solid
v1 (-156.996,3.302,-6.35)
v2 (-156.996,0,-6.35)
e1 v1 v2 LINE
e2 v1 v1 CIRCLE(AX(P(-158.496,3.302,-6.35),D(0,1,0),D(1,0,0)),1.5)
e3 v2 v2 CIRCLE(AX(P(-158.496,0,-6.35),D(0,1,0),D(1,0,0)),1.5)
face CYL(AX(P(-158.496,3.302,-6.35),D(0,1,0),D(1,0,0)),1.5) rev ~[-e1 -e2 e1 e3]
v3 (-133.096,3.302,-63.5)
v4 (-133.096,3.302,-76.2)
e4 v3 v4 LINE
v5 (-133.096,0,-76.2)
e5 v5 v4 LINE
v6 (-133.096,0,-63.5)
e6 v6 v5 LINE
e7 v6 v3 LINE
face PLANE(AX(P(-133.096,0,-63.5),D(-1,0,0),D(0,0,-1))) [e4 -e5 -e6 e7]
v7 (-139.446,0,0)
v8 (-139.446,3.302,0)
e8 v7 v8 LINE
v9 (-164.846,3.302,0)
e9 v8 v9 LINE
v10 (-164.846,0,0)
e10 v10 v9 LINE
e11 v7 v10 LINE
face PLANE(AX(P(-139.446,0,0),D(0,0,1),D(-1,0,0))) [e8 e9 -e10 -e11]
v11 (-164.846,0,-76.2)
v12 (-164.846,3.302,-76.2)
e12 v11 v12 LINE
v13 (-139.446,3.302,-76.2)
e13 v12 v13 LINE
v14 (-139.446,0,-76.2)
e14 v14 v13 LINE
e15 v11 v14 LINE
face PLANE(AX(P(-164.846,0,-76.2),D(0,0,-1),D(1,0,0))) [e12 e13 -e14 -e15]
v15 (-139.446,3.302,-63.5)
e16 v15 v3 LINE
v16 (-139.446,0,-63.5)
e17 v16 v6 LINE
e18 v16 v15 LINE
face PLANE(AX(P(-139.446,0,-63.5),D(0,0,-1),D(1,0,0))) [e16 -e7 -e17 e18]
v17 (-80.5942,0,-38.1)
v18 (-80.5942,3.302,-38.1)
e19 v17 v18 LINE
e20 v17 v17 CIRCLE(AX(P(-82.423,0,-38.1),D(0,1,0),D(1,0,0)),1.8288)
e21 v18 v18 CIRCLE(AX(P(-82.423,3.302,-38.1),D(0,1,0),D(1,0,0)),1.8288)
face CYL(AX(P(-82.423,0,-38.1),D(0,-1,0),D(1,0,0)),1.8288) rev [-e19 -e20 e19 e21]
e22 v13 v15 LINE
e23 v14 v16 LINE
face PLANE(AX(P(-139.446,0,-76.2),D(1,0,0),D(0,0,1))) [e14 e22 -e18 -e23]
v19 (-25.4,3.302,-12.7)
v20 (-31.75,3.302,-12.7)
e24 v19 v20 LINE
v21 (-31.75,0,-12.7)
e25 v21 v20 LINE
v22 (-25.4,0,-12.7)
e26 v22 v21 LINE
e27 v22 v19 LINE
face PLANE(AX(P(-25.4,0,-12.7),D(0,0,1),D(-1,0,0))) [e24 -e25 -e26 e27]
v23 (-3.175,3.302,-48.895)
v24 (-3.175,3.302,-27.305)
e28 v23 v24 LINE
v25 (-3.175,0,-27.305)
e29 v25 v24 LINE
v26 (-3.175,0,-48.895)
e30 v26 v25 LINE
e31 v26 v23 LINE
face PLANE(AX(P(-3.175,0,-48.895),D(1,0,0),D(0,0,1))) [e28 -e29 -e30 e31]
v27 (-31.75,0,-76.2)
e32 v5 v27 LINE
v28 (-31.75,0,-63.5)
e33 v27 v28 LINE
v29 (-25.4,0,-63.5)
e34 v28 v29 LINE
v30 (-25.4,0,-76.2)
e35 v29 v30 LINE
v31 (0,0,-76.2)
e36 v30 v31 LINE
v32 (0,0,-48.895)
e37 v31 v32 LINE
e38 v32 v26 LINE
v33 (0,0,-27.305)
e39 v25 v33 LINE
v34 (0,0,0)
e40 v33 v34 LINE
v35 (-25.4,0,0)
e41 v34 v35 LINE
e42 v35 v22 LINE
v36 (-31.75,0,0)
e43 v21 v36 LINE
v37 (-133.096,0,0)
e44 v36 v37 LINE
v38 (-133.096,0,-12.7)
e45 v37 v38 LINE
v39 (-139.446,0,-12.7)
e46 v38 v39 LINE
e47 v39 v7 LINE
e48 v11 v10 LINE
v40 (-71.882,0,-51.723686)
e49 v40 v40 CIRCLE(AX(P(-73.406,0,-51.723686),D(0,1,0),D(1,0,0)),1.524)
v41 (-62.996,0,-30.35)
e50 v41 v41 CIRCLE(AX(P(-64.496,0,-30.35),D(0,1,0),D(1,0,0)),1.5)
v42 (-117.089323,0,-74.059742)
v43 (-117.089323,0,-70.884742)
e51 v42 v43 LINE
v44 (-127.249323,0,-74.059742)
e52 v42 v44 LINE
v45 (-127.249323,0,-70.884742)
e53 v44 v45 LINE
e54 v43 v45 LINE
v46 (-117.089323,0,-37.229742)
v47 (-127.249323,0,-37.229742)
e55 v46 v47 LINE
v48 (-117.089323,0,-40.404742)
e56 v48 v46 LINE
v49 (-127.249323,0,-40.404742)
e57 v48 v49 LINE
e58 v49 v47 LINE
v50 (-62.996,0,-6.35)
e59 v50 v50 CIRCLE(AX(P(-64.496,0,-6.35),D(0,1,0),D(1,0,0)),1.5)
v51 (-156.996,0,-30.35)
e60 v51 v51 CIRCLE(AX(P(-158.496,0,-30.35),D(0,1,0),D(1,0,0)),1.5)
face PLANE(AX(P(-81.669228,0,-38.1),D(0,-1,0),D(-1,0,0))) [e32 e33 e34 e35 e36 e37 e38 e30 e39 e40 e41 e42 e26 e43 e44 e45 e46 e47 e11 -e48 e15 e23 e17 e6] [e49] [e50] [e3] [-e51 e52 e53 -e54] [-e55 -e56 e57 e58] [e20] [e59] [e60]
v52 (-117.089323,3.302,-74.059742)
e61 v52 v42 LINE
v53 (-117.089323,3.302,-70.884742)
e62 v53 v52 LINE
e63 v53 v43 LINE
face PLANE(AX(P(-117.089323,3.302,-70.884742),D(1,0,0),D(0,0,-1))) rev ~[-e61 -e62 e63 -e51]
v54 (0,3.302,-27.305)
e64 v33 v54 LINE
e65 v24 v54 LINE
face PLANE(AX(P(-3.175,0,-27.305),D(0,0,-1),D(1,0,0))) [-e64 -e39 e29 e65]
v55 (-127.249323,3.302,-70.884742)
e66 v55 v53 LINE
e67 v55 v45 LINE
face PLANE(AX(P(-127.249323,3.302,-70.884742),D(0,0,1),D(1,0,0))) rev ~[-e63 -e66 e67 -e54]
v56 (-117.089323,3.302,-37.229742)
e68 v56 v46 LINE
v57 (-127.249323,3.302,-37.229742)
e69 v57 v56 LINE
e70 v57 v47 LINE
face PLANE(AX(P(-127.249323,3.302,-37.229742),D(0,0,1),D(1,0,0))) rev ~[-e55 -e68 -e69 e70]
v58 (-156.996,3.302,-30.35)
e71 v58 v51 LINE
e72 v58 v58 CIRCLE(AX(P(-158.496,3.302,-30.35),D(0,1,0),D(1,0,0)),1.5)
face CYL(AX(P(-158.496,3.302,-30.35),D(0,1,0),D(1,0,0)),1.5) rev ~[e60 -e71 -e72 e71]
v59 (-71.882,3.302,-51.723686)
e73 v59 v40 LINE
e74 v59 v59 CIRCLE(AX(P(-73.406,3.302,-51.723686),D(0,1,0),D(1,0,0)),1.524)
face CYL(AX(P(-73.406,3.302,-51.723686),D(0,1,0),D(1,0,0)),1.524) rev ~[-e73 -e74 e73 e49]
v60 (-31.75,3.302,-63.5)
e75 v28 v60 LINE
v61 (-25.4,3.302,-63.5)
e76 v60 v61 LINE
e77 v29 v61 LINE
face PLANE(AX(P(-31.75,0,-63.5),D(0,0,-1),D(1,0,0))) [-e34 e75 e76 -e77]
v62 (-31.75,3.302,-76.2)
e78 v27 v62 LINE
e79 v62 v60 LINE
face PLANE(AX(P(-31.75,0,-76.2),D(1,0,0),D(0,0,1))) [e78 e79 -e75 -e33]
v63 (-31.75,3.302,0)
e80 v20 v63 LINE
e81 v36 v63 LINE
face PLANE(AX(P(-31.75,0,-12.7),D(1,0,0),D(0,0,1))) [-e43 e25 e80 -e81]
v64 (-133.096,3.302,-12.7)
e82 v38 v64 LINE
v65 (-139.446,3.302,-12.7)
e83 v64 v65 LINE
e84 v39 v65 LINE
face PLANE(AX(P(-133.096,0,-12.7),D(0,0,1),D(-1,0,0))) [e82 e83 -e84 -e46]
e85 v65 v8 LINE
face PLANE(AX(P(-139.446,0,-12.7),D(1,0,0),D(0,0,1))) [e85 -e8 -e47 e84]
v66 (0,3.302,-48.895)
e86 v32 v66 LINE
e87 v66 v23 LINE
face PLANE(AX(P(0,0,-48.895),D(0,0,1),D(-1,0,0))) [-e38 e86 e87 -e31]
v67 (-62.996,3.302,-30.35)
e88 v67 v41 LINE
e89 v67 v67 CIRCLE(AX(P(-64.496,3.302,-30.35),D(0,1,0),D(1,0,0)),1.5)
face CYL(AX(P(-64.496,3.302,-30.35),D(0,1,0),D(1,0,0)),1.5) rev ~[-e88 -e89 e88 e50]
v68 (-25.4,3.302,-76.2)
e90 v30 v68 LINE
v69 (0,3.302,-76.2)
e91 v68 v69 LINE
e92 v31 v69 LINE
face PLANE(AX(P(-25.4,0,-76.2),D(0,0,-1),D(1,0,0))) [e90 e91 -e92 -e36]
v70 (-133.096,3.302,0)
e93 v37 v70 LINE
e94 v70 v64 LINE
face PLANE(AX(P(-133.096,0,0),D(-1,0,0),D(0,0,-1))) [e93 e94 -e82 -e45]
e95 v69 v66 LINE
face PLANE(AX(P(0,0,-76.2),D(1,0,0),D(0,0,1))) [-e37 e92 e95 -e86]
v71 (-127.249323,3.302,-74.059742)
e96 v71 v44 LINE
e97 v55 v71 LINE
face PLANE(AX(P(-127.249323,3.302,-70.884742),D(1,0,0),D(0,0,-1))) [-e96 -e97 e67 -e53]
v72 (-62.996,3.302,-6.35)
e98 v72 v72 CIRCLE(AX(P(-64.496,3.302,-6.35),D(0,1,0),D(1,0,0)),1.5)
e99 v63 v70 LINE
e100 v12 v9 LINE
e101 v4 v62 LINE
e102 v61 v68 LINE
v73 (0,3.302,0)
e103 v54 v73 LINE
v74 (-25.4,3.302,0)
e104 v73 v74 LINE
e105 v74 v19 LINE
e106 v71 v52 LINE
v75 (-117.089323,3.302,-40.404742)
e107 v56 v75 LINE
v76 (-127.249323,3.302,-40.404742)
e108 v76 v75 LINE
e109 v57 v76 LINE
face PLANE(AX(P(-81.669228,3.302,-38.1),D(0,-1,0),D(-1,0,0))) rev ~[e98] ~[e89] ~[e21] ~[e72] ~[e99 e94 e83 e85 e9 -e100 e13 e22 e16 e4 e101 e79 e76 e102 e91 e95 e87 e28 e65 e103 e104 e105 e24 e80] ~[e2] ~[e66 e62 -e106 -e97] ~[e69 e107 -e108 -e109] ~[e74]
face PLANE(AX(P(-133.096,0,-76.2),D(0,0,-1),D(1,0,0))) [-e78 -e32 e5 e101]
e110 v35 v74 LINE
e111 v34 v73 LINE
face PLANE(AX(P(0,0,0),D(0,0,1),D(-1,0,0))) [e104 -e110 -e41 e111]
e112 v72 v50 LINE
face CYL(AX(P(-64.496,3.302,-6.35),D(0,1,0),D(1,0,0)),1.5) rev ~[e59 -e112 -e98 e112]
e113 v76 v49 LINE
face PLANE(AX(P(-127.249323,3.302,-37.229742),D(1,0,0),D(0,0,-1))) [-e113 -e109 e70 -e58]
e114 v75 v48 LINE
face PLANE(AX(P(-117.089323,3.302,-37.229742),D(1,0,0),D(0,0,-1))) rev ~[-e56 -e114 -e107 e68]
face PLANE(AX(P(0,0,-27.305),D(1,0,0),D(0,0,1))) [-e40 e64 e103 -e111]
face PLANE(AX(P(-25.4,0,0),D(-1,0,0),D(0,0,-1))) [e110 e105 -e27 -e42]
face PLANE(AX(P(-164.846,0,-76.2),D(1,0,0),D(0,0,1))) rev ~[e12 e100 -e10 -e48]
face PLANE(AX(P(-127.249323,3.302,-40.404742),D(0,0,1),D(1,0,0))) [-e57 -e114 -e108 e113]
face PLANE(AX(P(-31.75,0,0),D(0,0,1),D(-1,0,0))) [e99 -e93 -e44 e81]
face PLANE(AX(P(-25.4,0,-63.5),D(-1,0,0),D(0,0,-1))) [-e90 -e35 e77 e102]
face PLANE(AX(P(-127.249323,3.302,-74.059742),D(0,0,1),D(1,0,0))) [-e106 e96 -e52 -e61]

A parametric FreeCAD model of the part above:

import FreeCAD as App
import Part
import Sketcher

V = App.Vector
Q = App.Units.Quantity


def add_polygon(sketch, points):
    """Adds a closed chain of lines whose ends are joined by coincident constraints."""
    first, n = sketch.GeometryCount, len(points)
    for a, b in zip(points, points[1:] + points[:1]):
        sketch.addGeometry(Part.LineSegment(App.Vector(*a, 0), App.Vector(*b, 0)), False)
    for i in range(n):
        sketch.addConstraint(Sketcher.Constraint("Coincident", first + i, 2, first + (i + 1) % n, 1))

doc = App.newDocument("Part")
params = doc.addObject("Spreadsheet::Sheet", "Params")
for row, (alias, value) in enumerate([
    ("sketch1_width", "1 in"),
    ("sketch1_height", "3 in"),
    ("sketch1_diameter", "0.144 in"),
    ("sketch1_height2", "0.5 in"),
    ("sketch1_width2", "0.25 in"),
    ("pad1_length", "0.13 in"),
    ("sketch3_diameter", "0.12 in"),
    ("sketch3_width", "0.4 in"),
    ("sketch3_height", "0.125 in"),
], start=1):
    params.set(f"A{row}", alias)
    params.set(f"B{row}", "=" + value)
    params.setAlias(f"B{row}", alias)

body = doc.addObject("PartDesign::Body", "Body")

# Sketch on XZ plane
sketch1 = body.newObject("Sketcher::SketchObject", "Sketch")
sketch1.AttachmentSupport = (doc.getObject("XZ_Plane"), [""])
sketch1.MapMode = "FlatFace"
add_polygon(sketch1, [(-139.4, -76.2), (-164.8, -76.2), (-164.8, 0), (-139.4, 0), (-139.4, -12.7), (-133.1, -12.7), (-133.1, 0), (-31.8, 0), (-31.8, -12.7), (-25.4, -12.7), (-25.4, 0), (0, 0), (0, -27.3), (-3.2, -27.3), (-3.2, -48.9), (0, -48.9), (0, -76.2), (-25.4, -76.2), (-25.4, -63.5), (-31.8, -63.5), (-31.8, -76.2), (-133.1, -76.2), (-133.1, -63.5), (-139.4, -63.5)])  # lines 0-23
sketch1.addGeometry(Part.Circle(V(-82.4, -38.1, 0), V(0, 0, 1), 1.8), False)  # 24
sketch1.addConstraint(Sketcher.Constraint("Horizontal", 0))
sketch1.addConstraint(Sketcher.Constraint("Vertical", 1))
sketch1.addConstraint(Sketcher.Constraint("Horizontal", 2))
sketch1.addConstraint(Sketcher.Constraint("Vertical", 3))
sketch1.addConstraint(Sketcher.Constraint("Horizontal", 4))
sketch1.addConstraint(Sketcher.Constraint("Vertical", 5))
sketch1.addConstraint(Sketcher.Constraint("Horizontal", 6))
sketch1.addConstraint(Sketcher.Constraint("Vertical", 7))
sketch1.addConstraint(Sketcher.Constraint("Horizontal", 8))
sketch1.addConstraint(Sketcher.Constraint("Vertical", 9))
sketch1.addConstraint(Sketcher.Constraint("Horizontal", 10))
sketch1.addConstraint(Sketcher.Constraint("Vertical", 11))
sketch1.addConstraint(Sketcher.Constraint("Horizontal", 12))
sketch1.addConstraint(Sketcher.Constraint("Vertical", 13))
sketch1.addConstraint(Sketcher.Constraint("Horizontal", 14))
sketch1.addConstraint(Sketcher.Constraint("Vertical", 15))
sketch1.addConstraint(Sketcher.Constraint("Horizontal", 16))
sketch1.addConstraint(Sketcher.Constraint("Vertical", 17))
sketch1.addConstraint(Sketcher.Constraint("Horizontal", 18))
sketch1.addConstraint(Sketcher.Constraint("Vertical", 19))
sketch1.addConstraint(Sketcher.Constraint("Horizontal", 20))
sketch1.addConstraint(Sketcher.Constraint("Vertical", 21))
sketch1.addConstraint(Sketcher.Constraint("Horizontal", 22))
sketch1.addConstraint(Sketcher.Constraint("Vertical", 23))
sketch1.addConstraint(Sketcher.Constraint("Coincident", 10, 2, -1, 1))
sketch1.addConstraint(Sketcher.Constraint("PointOnObject", 1, 2, -1))
sketch1.addConstraint(Sketcher.Constraint("PointOnObject", 5, 2, -1))
sketch1.addConstraint(Sketcher.Constraint("PointOnObject", 14, 2, -2))
sketch1.addConstraint(Sketcher.Constraint("Horizontal", 4, 2, 7, 2))
sketch1.addConstraint(Sketcher.Constraint("Horizontal", 0, 2, 15, 2))
sketch1.addConstraint(Sketcher.Constraint("Horizontal", 16, 2, 19, 2))
sketch1.addConstraint(Sketcher.Constraint("Horizontal", 18, 2, 21, 2))
sketch1.addConstraint(Sketcher.Constraint("Vertical", 9, 2, 16, 2))
sketch1.addConstraint(Sketcher.Constraint("Vertical", 7, 2, 18, 2))
sketch1.addConstraint(Sketcher.Constraint("Vertical", 5, 2, 20, 2))
sketch1.addConstraint(Sketcher.Constraint("Vertical", 3, 2, 22, 2))
sketch1.addConstraint(Sketcher.Constraint("Equal", 4, 8))
sketch1.addConstraint(Sketcher.Constraint("Equal", 2, 10))
sketch1.addConstraint(Sketcher.Constraint("Equal", 11, 15))
sketch1.addConstraint(Sketcher.Constraint("Equal", 9, 17))
sketch1.addConstraint(Sketcher.Constraint("DistanceX", 0, 2, 0, 1, Q("1 in")))
sketch1.addConstraint(Sketcher.Constraint("DistanceY", 1, 1, 1, 2, Q("3 in")))
sketch1.addConstraint(Sketcher.Constraint("Diameter", 24, Q("0.144 in")))
sketch1.addConstraint(Sketcher.Constraint("DistanceY", 3, 2, 3, 1, Q("0.5 in")))
sketch1.addConstraint(Sketcher.Constraint("DistanceY", 24, 3, 3, 2, Q("1 in")))
sketch1.addConstraint(Sketcher.Constraint("DistanceX", 4, 1, 4, 2, Q("0.25 in")))
sketch1.addConstraint(Sketcher.Constraint("DistanceX", 6, 1, 6, 2, Q("3.99 in")))
sketch1.addConstraint(Sketcher.Constraint("DistanceY", 13, 2, 13, 1, Q("0.85 in")))
sketch1.addConstraint(Sketcher.Constraint("DistanceX", 12, 2, 12, 1, Q("0.125 in")))
sketch1.addConstraint(Sketcher.Constraint("DistanceX", 24, 3, -1, 1, Q("3.245 in")))
sketch1.setExpression("Constraints[64]", "Params.sketch1_width")
sketch1.setExpression("Constraints[65]", "Params.sketch1_height")
sketch1.setExpression("Constraints[66]", "Params.sketch1_diameter")
sketch1.setExpression("Constraints[67]", "Params.sketch1_height2")
sketch1.setExpression("Constraints[69]", "Params.sketch1_width2")
pad1 = body.newObject("PartDesign::Pad", "Pad")
pad1.Profile = sketch1
pad1.setExpression("Length", "Params.pad1_length")
pad1.Reversed = True

# Sketch on XZ plane
sketch2 = body.newObject("Sketcher::SketchObject", "Sketch001")
sketch2.AttachmentSupport = (doc.getObject("XZ_Plane"), [""])
sketch2.MapMode = "FlatFace"
sketch2.AttachmentOffset = App.Placement(V(0, 0, -0.13 * 25.4), App.Rotation())
sketch2.addGeometry(Part.Circle(V(-158.5, -30.4, 0), V(0, 0, 1), 1.5), False)
sketch2.addGeometry(Part.Circle(V(-158.5, -6.3, 0), V(0, 0, 1), 1.5), False)
sketch2.addGeometry(Part.Circle(V(-64.5, -6.3, 0), V(0, 0, 1), 1.5), False)
sketch2.addGeometry(Part.Circle(V(-64.5, -30.4, 0), V(0, 0, 1), 1.5), False)
sketch2.addConstraint(Sketcher.Constraint("Equal", 0, 1))
sketch2.addConstraint(Sketcher.Constraint("Equal", 1, 2))
sketch2.addConstraint(Sketcher.Constraint("Equal", 2, 3))
sketch2.addConstraint(Sketcher.Constraint("Horizontal", 1, 3, 2, 3))
sketch2.addConstraint(Sketcher.Constraint("Horizontal", 0, 3, 3, 3))
sketch2.addConstraint(Sketcher.Constraint("Vertical", 0, 3, 1, 3))
sketch2.addConstraint(Sketcher.Constraint("Vertical", 2, 3, 3, 3))
sketch2.addConstraint(Sketcher.Constraint("Diameter", 0, Q("3 mm")))
sketch2.addConstraint(Sketcher.Constraint("DistanceX", 0, 3, -1, 1, Q("6.24 in")))
sketch2.addConstraint(Sketcher.Constraint("DistanceY", 1, 3, -1, 1, Q("0.25 in")))
sketch2.addConstraint(Sketcher.Constraint("DistanceY", 0, 3, -1, 1, Q("30.35 mm")))
sketch2.addConstraint(Sketcher.Constraint("DistanceX", 2, 3, -1, 1, Q("64.496 mm")))
pocket1 = body.newObject("PartDesign::Pocket", "Pocket")
pocket1.Profile = sketch2
pocket1.Type = "ThroughAll"
pocket1.Reversed = True

# Sketch on XZ plane
sketch3 = body.newObject("Sketcher::SketchObject", "Sketch002")
sketch3.AttachmentSupport = (doc.getObject("XZ_Plane"), [""])
sketch3.MapMode = "FlatFace"
sketch3.AttachmentOffset = App.Placement(V(0, 0, -0.13 * 25.4), App.Rotation())
sketch3.addGeometry(Part.Circle(V(-73.4, -51.7, 0), V(0, 0, 1), 1.5), False)  # 0
add_polygon(sketch3, [(-127.2, -40.4), (-127.2, -37.2), (-117.1, -37.2), (-117.1, -40.4)])  # lines 1-4
add_polygon(sketch3, [(-127.2, -74.1), (-127.2, -70.9), (-117.1, -70.9), (-117.1, -74.1)])  # lines 5-8
sketch3.addConstraint(Sketcher.Constraint("Vertical", 1))
sketch3.addConstraint(Sketcher.Constraint("Horizontal", 2))
sketch3.addConstraint(Sketcher.Constraint("Vertical", 3))
sketch3.addConstraint(Sketcher.Constraint("Horizontal", 4))
sketch3.addConstraint(Sketcher.Constraint("Vertical", 5))
sketch3.addConstraint(Sketcher.Constraint("Horizontal", 6))
sketch3.addConstraint(Sketcher.Constraint("Vertical", 7))
sketch3.addConstraint(Sketcher.Constraint("Horizontal", 8))
sketch3.addConstraint(Sketcher.Constraint("Vertical", 4, 2, 5, 2))
sketch3.addConstraint(Sketcher.Constraint("Vertical", 3, 2, 6, 2))
sketch3.addConstraint(Sketcher.Constraint("Equal", 3, 5))
sketch3.addConstraint(Sketcher.Constraint("Diameter", 0, Q("0.12 in")))
sketch3.addConstraint(Sketcher.Constraint("DistanceX", 2, 1, 2, 2, Q("0.4 in")))
sketch3.addConstraint(Sketcher.Constraint("DistanceY", 5, 2, 4, 2, Q("1.2 in")))
sketch3.addConstraint(Sketcher.Constraint("DistanceY", 1, 1, 1, 2, Q("0.125 in")))
sketch3.addConstraint(Sketcher.Constraint("DistanceX", 0, 3, -1, 1, Q("2.89 in")))
sketch3.addConstraint(Sketcher.Constraint("DistanceY", 1, 2, -1, 1, Q("37.229742 mm")))
sketch3.addConstraint(Sketcher.Constraint("DistanceY", 0, 3, -1, 1, Q("51.723686 mm")))
sketch3.addConstraint(Sketcher.Constraint("DistanceX", 1, 2, -1, 1, Q("127.249323 mm")))
sketch3.setExpression("Constraints[19]", "Params.sketch3_diameter")
sketch3.setExpression("Constraints[20]", "Params.sketch3_width")
sketch3.setExpression("Constraints[22]", "Params.sketch3_height")
pocket2 = body.newObject("PartDesign::Pocket", "Pocket001")
pocket2.Profile = sketch3
pocket2.Type = "ThroughAll"
pocket2.Reversed = True

doc.recompute()
